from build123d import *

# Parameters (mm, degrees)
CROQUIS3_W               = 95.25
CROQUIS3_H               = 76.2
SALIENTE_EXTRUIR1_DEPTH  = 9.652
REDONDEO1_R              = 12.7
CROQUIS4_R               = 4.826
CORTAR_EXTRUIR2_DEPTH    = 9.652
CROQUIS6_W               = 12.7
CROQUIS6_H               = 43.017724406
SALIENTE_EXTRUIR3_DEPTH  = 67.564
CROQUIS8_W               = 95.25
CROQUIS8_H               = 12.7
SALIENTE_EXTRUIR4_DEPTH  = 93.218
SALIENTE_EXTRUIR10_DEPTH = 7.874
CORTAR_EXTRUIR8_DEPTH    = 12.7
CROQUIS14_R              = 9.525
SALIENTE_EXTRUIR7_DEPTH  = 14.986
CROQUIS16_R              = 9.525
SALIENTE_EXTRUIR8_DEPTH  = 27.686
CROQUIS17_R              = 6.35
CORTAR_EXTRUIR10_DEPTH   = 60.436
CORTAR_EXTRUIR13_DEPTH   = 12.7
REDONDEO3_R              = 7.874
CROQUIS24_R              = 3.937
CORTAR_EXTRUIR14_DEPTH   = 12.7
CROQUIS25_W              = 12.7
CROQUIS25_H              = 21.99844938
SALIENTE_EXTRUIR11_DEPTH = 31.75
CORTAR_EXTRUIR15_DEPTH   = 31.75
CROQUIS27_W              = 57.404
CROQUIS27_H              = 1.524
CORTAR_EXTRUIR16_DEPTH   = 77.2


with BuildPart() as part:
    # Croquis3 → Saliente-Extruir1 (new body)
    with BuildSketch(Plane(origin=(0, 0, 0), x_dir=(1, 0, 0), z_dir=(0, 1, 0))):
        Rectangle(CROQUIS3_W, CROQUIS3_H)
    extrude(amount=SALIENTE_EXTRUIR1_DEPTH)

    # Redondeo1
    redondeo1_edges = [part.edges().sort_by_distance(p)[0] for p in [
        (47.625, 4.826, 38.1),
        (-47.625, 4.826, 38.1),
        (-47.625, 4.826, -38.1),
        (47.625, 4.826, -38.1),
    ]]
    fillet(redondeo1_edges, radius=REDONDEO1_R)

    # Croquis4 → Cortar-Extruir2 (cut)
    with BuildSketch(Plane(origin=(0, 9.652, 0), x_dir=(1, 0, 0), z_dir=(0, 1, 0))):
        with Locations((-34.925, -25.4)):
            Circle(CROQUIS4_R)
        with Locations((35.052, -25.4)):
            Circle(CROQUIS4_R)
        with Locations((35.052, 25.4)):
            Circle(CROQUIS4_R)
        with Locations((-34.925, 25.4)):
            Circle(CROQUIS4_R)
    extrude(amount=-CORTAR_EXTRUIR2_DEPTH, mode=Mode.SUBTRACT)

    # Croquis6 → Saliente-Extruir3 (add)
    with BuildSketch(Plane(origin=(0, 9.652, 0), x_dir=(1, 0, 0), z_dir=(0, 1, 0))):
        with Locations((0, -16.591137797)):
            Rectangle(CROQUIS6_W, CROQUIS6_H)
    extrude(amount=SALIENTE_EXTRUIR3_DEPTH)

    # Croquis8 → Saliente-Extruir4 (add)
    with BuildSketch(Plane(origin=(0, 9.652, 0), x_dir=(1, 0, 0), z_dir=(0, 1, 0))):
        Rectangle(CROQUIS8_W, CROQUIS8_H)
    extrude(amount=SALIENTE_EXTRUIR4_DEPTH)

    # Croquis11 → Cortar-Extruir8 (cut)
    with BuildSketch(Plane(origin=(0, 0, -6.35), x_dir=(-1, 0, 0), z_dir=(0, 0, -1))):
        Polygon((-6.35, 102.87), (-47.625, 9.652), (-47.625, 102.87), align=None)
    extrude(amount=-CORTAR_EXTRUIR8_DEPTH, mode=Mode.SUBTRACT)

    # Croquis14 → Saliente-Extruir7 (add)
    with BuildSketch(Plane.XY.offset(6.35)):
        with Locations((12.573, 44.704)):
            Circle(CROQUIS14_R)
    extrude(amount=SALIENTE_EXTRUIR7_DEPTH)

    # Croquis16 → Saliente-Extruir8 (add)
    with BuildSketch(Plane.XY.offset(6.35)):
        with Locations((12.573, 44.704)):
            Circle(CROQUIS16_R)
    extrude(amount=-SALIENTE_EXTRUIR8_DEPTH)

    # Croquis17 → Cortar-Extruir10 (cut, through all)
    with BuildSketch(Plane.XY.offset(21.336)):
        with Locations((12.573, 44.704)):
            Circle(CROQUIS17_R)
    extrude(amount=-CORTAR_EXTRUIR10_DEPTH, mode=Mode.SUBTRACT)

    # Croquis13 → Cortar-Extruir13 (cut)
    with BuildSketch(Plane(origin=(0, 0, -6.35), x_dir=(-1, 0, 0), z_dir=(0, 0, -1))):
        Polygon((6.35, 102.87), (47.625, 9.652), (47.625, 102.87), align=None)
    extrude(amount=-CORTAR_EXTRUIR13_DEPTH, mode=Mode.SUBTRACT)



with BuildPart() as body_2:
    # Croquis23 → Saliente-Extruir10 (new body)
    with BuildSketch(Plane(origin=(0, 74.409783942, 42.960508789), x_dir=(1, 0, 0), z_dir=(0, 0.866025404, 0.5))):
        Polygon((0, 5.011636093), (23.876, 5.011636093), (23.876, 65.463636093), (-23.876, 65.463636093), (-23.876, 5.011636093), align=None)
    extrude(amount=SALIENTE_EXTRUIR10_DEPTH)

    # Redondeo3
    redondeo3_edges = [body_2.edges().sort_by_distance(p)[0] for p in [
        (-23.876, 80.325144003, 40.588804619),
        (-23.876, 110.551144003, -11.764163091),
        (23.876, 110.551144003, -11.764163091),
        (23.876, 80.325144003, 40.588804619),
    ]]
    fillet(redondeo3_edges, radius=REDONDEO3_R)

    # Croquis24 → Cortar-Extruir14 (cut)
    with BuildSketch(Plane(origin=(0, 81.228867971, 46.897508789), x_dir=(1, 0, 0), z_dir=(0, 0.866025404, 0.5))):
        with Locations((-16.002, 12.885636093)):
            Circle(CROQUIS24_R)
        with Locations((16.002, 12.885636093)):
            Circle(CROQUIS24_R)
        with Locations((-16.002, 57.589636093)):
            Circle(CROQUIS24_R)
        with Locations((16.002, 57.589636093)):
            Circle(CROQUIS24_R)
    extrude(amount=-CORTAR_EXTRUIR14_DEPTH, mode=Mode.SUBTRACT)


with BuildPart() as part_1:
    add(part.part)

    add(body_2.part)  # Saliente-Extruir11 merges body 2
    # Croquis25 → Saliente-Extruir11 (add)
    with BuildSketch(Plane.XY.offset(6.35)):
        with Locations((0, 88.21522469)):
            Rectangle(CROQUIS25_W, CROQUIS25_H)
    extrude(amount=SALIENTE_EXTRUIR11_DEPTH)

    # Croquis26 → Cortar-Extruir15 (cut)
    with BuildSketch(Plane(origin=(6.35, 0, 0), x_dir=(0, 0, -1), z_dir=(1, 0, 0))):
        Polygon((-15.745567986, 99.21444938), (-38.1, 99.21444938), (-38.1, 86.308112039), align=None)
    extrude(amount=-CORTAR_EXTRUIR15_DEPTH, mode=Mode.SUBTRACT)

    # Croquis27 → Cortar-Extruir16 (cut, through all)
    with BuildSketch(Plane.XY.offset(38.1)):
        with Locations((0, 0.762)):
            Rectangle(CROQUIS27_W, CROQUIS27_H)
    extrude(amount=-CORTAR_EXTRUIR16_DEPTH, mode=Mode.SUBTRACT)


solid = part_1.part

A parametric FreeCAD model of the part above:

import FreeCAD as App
import Part
import Sketcher
from FreeCAD import Vector
Q = App.Units.Quantity


def edges_at(feature, points):
    """Names of the edges that pass closest to the given points."""
    edges = feature.Shape.Edges
    near = lambda p: min(range(len(edges)), key=lambda i: edges[i].distToShape(Part.Vertex(*p))[0])
    return sorted({f"Edge{near(p) + 1}" for p in points})


def add_polygon(sketch, points):
    """Adds a closed chain of lines whose ends are joined by coincident constraints."""
    first, n = sketch.GeometryCount, len(points)
    for a, b in zip(points, points[1:] + points[:1]):
        sketch.addGeometry(Part.LineSegment(App.Vector(*a, 0), App.Vector(*b, 0)), False)
    for i in range(n):
        sketch.addConstraint(Sketcher.Constraint("Coincident", first + i, 2, first + (i + 1) % n, 1))

doc = App.newDocument("Part")
params = doc.addObject("Spreadsheet::Sheet", "Params")
for row, (alias, value) in enumerate([
    ("sketch1_height", "3 in"),
    ("sketch1_width", "3.75 in"),
    ("pad1_length", "0.38 in"),
    ("fillet_radius", "0.5 in"),
    ("sketch2_diameter", "0.38 in"),
    ("pocket1_length", "0.38 in"),
    ("sketch3_width", "0.5 in"),
    ("pad2_length", "2.66 in"),
    ("sketch4_height", "0.5 in"),
    ("sketch4_width", "3.75 in"),
    ("pad3_length", "3.67 in"),
    ("sketch5_height", "3.67 in"),
    ("sketch5_width", "1.625 in"),
    ("pocket2_length", "0.5 in"),
    ("sketch6_diameter", "0.75 in"),
    ("pad4_length", "0.59 in"),
    ("sketch7_diameter", "0.75 in"),
    ("pad5_length", "1.09 in"),
    ("sketch8_diameter", "0.5 in"),
    ("sketch9_height", "3.67 in"),
    ("sketch9_width", "1.625 in"),
    ("pocket4_length", "0.5 in"),
    ("sketch10_width", "1.88 in"),
    ("sketch10_height", "2.38 in"),
    ("pad6_length", "0.31 in"),
    ("fillet2_radius", "0.31 in"),
    ("sketch11_diameter", "0.31 in"),
    ("pocket5_length", "0.5 in"),
    ("sketch12_width", "0.5 in"),
    ("pad7_length", "1.25 in"),
    ("pocket6_length", "1.25 in"),
    ("sketch14_width", "2.26 in"),
    ("sketch14_height", "0.06 in"),
], start=1):
    params.set(f"A{row}", alias)
    params.set(f"B{row}", "=" + value)
    params.setAlias(f"B{row}", alias)

body = doc.addObject("PartDesign::Body", "Body")

# Sketch on XZ plane
sketch1 = doc.addObject("Sketcher::SketchObject", "Sketch")
body.addObject(sketch1)
sketch1.AttachmentSupport = (doc.XZ_Plane, [""])
sketch1.MapMode = "FlatFace"
add_polygon(sketch1, [(-48, -38), (-48, 38), (48, 38), (48, -38)])  # lines 0-3
sketch1.addConstraint([
    Sketcher.Constraint("Vertical", 0),
    Sketcher.Constraint("Horizontal", 1),
    Sketcher.Constraint("Vertical", 2),
    Sketcher.Constraint("Horizontal", 3),
    Sketcher.Constraint("Symmetric", 0, 2, 2, 2, -1, 1),
    Sketcher.Constraint("DistanceY", 0, 1, 0, 2, Q("3 in")),
    Sketcher.Constraint("DistanceX", 1, 1, 1, 2, Q("3.75 in")),
])
sketch1.setExpression("Constraints[9]", "Params.sketch1_height")
sketch1.setExpression("Constraints[10]", "Params.sketch1_width")
pad1 = doc.addObject("PartDesign::Pad", "Pad")
body.addObject(pad1)
pad1.Profile = sketch1
pad1.setExpression("Length", "Params.pad1_length")
pad1.Reversed = True
doc.recompute()

fillet = doc.addObject("PartDesign::Fillet", "Fillet")
body.addObject(fillet)
fillet.Base = (pad1, edges_at(pad1, [
    (47.625, 4.826, 38.1),
    (-47.625, 4.826, 38.1),
    (-47.625, 4.826, -38.1),
    (47.625, 4.826, -38.1),
]))
fillet.setExpression("Radius", "Params.fillet_radius")

# Sketch on XZ plane
sketch2 = doc.addObject("Sketcher::SketchObject", "Sketch001")
body.addObject(sketch2)
sketch2.AttachmentSupport = (doc.XZ_Plane, [""])
sketch2.MapMode = "FlatFace"
sketch2.AttachmentOffset = App.Placement(Vector(0, 0, -0.38 * 25.4), App.Rotation())
sketch2.addGeometry([
    Part.Circle(Vector(-34.9, 25.4, 0), Vector(0, 0, 1), 4.8),
    Part.Circle(Vector(35.1, 25.4, 0), Vector(0, 0, 1), 4.8),
    Part.Circle(Vector(35.1, -25.4, 0), Vector(0, 0, 1), 4.8),
    Part.Circle(Vector(-34.9, -25.4, 0), Vector(0, 0, 1), 4.8),
], False)
sketch2.addConstraint([
    Sketcher.Constraint("Equal", 0, 1),
    Sketcher.Constraint("Equal", 1, 2),
    Sketcher.Constraint("Equal", 2, 3),
    Sketcher.Constraint("Symmetric", 1, 3, 2, 3, -1),
    Sketcher.Constraint("Symmetric", 0, 3, 3, 3, -1),
    Sketcher.Constraint("Horizontal", 0, 3, 1, 3),
    Sketcher.Constraint("Diameter", 0, Q("0.38 in")),
    Sketcher.Constraint("DistanceY", -1, 1, 0, 3, Q("1 in")),
    Sketcher.Constraint("DistanceX", -1, 1, 1, 3, Q("1.38 in")),
    Sketcher.Constraint("DistanceX", 0, 3, -1, 1, Q("1.375 in")),
])
sketch2.setExpression("Constraints[6]", "Params.sketch2_diameter")
pocket1 = doc.addObject("PartDesign::Pocket", "Pocket")
body.addObject(pocket1)
pocket1.Profile = sketch2
pocket1.setExpression("Length", "Params.pocket1_length")
pocket1.Reversed = True

# Sketch on XZ plane
sketch3 = doc.addObject("Sketcher::SketchObject", "Sketch002")
body.addObject(sketch3)
sketch3.AttachmentSupport = (doc.XZ_Plane, [""])
sketch3.MapMode = "FlatFace"
sketch3.AttachmentOffset = App.Placement(Vector(0, 0, -0.38 * 25.4), App.Rotation())
add_polygon(sketch3, [(-6, -5), (-6, 38), (6, 38), (6, -5)])  # lines 0-3
sketch3.addConstraint([
    Sketcher.Constraint("Vertical", 0),
    Sketcher.Constraint("Horizontal", 1),
    Sketcher.Constraint("Vertical", 2),
    Sketcher.Constraint("Horizontal", 3),
    Sketcher.Constraint("DistanceX", 1, 1, 1, 2, Q("0.5 in")),
    Sketcher.Constraint("DistanceY", -1, 1, 0, 2, Q("1.5 in")),
    Sketcher.Constraint("DistanceX", 0, 2, -1, 1, Q("0.25 in")),
    Sketcher.Constraint("DistanceY", 0, 1, 0, 2, Q("43.017724 mm")),
])
sketch3.setExpression("Constraints[8]", "Params.sketch3_width")
pad2 = doc.addObject("PartDesign::Pad", "Pad001")
body.addObject(pad2)
pad2.Profile = sketch3
pad2.setExpression("Length", "Params.pad2_length")
pad2.Reversed = True

# Sketch on XZ plane
sketch4 = doc.addObject("Sketcher::SketchObject", "Sketch003")
body.addObject(sketch4)
sketch4.AttachmentSupport = (doc.XZ_Plane, [""])
sketch4.MapMode = "FlatFace"
sketch4.AttachmentOffset = App.Placement(Vector(0, 0, -0.38 * 25.4), App.Rotation())
add_polygon(sketch4, [(-48, -6), (-48, 6), (48, 6), (48, -6)])  # lines 0-3
sketch4.addConstraint([
    Sketcher.Constraint("Vertical", 0),
    Sketcher.Constraint("Horizontal", 1),
    Sketcher.Constraint("Vertical", 2),
    Sketcher.Constraint("Horizontal", 3),
    Sketcher.Constraint("Symmetric", 0, 2, 2, 2, -1, 1),
    Sketcher.Constraint("DistanceY", 0, 1, 0, 2, Q("0.5 in")),
    Sketcher.Constraint("DistanceX", 1, 1, 1, 2, Q("3.75 in")),
])
sketch4.setExpression("Constraints[9]", "Params.sketch4_height")
sketch4.setExpression("Constraints[10]", "Params.sketch4_width")
pad3 = doc.addObject("PartDesign::Pad", "Pad002")
body.addObject(pad3)
pad3.Profile = sketch4
pad3.setExpression("Length", "Params.pad3_length")
pad3.Reversed = True

# Sketch on XY plane
sketch5 = doc.addObject("Sketcher::SketchObject", "Sketch004")
body.addObject(sketch5)
sketch5.AttachmentSupport = (doc.XY_Plane, [""])
sketch5.MapMode = "FlatFace"
sketch5.AttachmentOffset = App.Placement(Vector(0, 0, -0.25 * 25.4), App.Rotation())
add_polygon(sketch5, [(48, 10), (6, 103), (48, 103)])  # lines 0-2
sketch5.addConstraint([
    Sketcher.Constraint("Horizontal", 1),
    Sketcher.Constraint("Vertical", 2),
    Sketcher.Constraint("DistanceY", 2, 2, 2, 1, Q("3.67 in")),
    Sketcher.Constraint("DistanceX", 1, 1, 1, 2, Q("1.625 in")),
    Sketcher.Constraint("DistanceX", -1, 1, 0, 2, Q("0.25 in")),
    Sketcher.Constraint("DistanceY", -1, 1, 0, 2, Q("4.05 in")),
])
sketch5.setExpression("Constraints[5]", "Params.sketch5_height")
sketch5.setExpression("Constraints[6]", "Params.sketch5_width")
pocket2 = doc.addObject("PartDesign::Pocket", "Pocket001")
body.addObject(pocket2)
pocket2.Profile = sketch5
pocket2.setExpression("Length", "Params.pocket2_length")
pocket2.Reversed = True

# Sketch on XY plane
sketch6 = doc.addObject("Sketcher::SketchObject", "Sketch005")
body.addObject(sketch6)
sketch6.AttachmentSupport = (doc.XY_Plane, [""])
sketch6.MapMode = "FlatFace"
sketch6.AttachmentOffset = App.Placement(Vector(0, 0, 0.25 * 25.4), App.Rotation())
sketch6.addGeometry(Part.Circle(Vector(13, 45, 0), Vector(0, 0, 1), 10), False)
sketch6.addConstraint([
    Sketcher.Constraint("Diameter", 0, Q("0.75 in")),
    Sketcher.Constraint("DistanceY", -1, 1, 0, 3, Q("1.76 in")),
    Sketcher.Constraint("DistanceX", -1, 1, 0, 3, Q("0.495 in")),
])
sketch6.setExpression("Constraints[0]", "Params.sketch6_diameter")
pad4 = doc.addObject("PartDesign::Pad", "Pad003")
body.addObject(pad4)
pad4.Profile = sketch6
pad4.setExpression("Length", "Params.pad4_length")

# Sketch on XY plane
sketch7 = doc.addObject("Sketcher::SketchObject", "Sketch006")
body.addObject(sketch7)
sketch7.AttachmentSupport = (doc.XY_Plane, [""])
sketch7.MapMode = "FlatFace"
sketch7.AttachmentOffset = App.Placement(Vector(0, 0, 0.25 * 25.4), App.Rotation())
sketch7.addGeometry(Part.Circle(Vector(13, 45, 0), Vector(0, 0, 1), 10), False)
sketch7.addConstraint([
    Sketcher.Constraint("Diameter", 0, Q("0.75 in")),
    Sketcher.Constraint("DistanceY", -1, 1, 0, 3, Q("1.76 in")),
    Sketcher.Constraint("DistanceX", -1, 1, 0, 3, Q("0.495 in")),
])
sketch7.setExpression("Constraints[0]", "Params.sketch7_diameter")
pad5 = doc.addObject("PartDesign::Pad", "Pad004")
body.addObject(pad5)
pad5.Profile = sketch7
pad5.setExpression("Length", "Params.pad5_length")
pad5.Reversed = True

# Sketch on XY plane
sketch8 = doc.addObject("Sketcher::SketchObject", "Sketch007")
body.addObject(sketch8)
sketch8.AttachmentSupport = (doc.XY_Plane, [""])
sketch8.MapMode = "FlatFace"
sketch8.AttachmentOffset = App.Placement(Vector(0, 0, 0.84 * 25.4), App.Rotation())
sketch8.addGeometry(Part.Circle(Vector(13, 45, 0), Vector(0, 0, 1), 6), False)
sketch8.addConstraint([
    Sketcher.Constraint("Diameter", 0, Q("0.5 in")),
    Sketcher.Constraint("DistanceY", -1, 1, 0, 3, Q("1.76 in")),
    Sketcher.Constraint("DistanceX", -1, 1, 0, 3, Q("0.495 in")),
])
sketch8.setExpression("Constraints[0]", "Params.sketch8_diameter")
pocket3 = doc.addObject("PartDesign::Pocket", "Pocket002")
body.addObject(pocket3)
pocket3.Profile = sketch8
pocket3.Type = "ThroughAll"

# Sketch on XY plane
sketch9 = doc.addObject("Sketcher::SketchObject", "Sketch008")
body.addObject(sketch9)
sketch9.AttachmentSupport = (doc.XY_Plane, [""])
sketch9.MapMode = "FlatFace"
sketch9.AttachmentOffset = App.Placement(Vector(0, 0, -0.25 * 25.4), App.Rotation())
add_polygon(sketch9, [(-6, 103), (-48, 10), (-48, 103)])  # lines 0-2
sketch9.addConstraint([
    Sketcher.Constraint("Vertical", 1),
    Sketcher.Constraint("Horizontal", 2),
    Sketcher.Constraint("DistanceY", 1, 1, 1, 2, Q("3.67 in")),
    Sketcher.Constraint("DistanceX", 2, 1, 2, 2, Q("1.625 in")),
    Sketcher.Constraint("DistanceY", -1, 1, 0, 2, Q("0.38 in")),
    Sketcher.Constraint("DistanceX", 2, 2, -1, 1, Q("0.25 in")),
])
sketch9.setExpression("Constraints[5]", "Params.sketch9_height")
sketch9.setExpression("Constraints[6]", "Params.sketch9_width")
pocket4 = doc.addObject("PartDesign::Pocket", "Pocket003")
body.addObject(pocket4)
pocket4.Profile = sketch9
pocket4.setExpression("Length", "Params.pocket4_length")
pocket4.Reversed = True
body2 = doc.addObject("PartDesign::Body", "Body001")

# Sketch on an angled plane
sketch10 = doc.addObject("Sketcher::SketchObject", "Sketch009")
body2.addObject(sketch10)
sketch10.Placement = App.Placement(Vector(0, 74.409784, 42.960509), App.Rotation(Vector(1, 0, 0), Vector(0, 0.5, -0.866025404), Vector(0, 0.866025404, 0.5), "ZXY"))
add_polygon(sketch10, [(24, 5), (24, 65), (-24, 65), (-24, 5)])  # lines 0-3
sketch10.addConstraint([
    Sketcher.Constraint("Vertical", 0),
    Sketcher.Constraint("Horizontal", 1),
    Sketcher.Constraint("Vertical", 2),
    Sketcher.Constraint("Horizontal", 3),
    Sketcher.Constraint("DistanceX", 1, 2, 1, 1, Q("1.88 in")),
    Sketcher.Constraint("DistanceY", 0, 1, 0, 2, Q("2.38 in")),
    Sketcher.Constraint("DistanceX", -1, 1, 0, 2, Q("0.94 in")),
    Sketcher.Constraint("DistanceY", -1, 1, 0, 2, Q("65.463636 mm")),
])
sketch10.setExpression("Constraints[8]", "Params.sketch10_width")
sketch10.setExpression("Constraints[9]", "Params.sketch10_height")
pad6 = doc.addObject("PartDesign::Pad", "Pad005")
body2.addObject(pad6)
pad6.Profile = sketch10
pad6.setExpression("Length", "Params.pad6_length")
doc.recompute()

fillet2 = doc.addObject("PartDesign::Fillet", "Fillet001")
body2.addObject(fillet2)
fillet2.Base = (pad6, edges_at(pad6, [
    (-23.876, 80.325, 40.589),
    (-23.876, 110.551, -11.764),
    (23.876, 110.551, -11.764),
    (23.876, 80.325, 40.589),
]))
fillet2.setExpression("Radius", "Params.fillet2_radius")

# Sketch on an angled plane
sketch11 = doc.addObject("Sketcher::SketchObject", "Sketch010")
body2.addObject(sketch11)
sketch11.Placement = App.Placement(Vector(0, 81.228868, 46.897509), App.Rotation(Vector(1, 0, 0), Vector(0, 0.5, -0.866025404), Vector(0, 0.866025404, 0.5), "ZXY"))
sketch11.addGeometry([
    Part.Circle(Vector(-16, 12.9, 0), Vector(0, 0, 1), 3.9),
    Part.Circle(Vector(16, 12.9, 0), Vector(0, 0, 1), 3.9),
    Part.Circle(Vector(-16, 57.6, 0), Vector(0, 0, 1), 3.9),
    Part.Circle(Vector(16, 57.6, 0), Vector(0, 0, 1), 3.9),
], False)
sketch11.addConstraint([
    Sketcher.Constraint("Equal", 0, 1),
    Sketcher.Constraint("Equal", 1, 2),
    Sketcher.Constraint("Equal", 2, 3),
    Sketcher.Constraint("Symmetric", 0, 3, 1, 3, -2),
    Sketcher.Constraint("Symmetric", 2, 3, 3, 3, -2),
    Sketcher.Constraint("Vertical", 0, 3, 2, 3),
    Sketcher.Constraint("Diameter", 0, Q("0.31 in")),
    Sketcher.Constraint("DistanceX", 0, 3, -1, 1, Q("0.63 in")),
    Sketcher.Constraint("DistanceY", 0, 3, 2, 3, Q("1.76 in")),
    Sketcher.Constraint("DistanceY", -1, 1, 0, 3, Q("12.885636 mm")),
])
sketch11.setExpression("Constraints[6]", "Params.sketch11_diameter")
pocket5 = doc.addObject("PartDesign::Pocket", "Pocket004")
body2.addObject(pocket5)
pocket5.Profile = sketch11
pocket5.setExpression("Length", "Params.pocket5_length")
doc.recompute()

boolean = doc.addObject("PartDesign::Boolean", "Boolean")
body.addObject(boolean)
boolean.Type = "Fuse"
boolean.addObjects([body2])

# Sketch on XY plane
sketch12 = doc.addObject("Sketcher::SketchObject", "Sketch011")
body.addObject(sketch12)
sketch12.AttachmentSupport = (doc.XY_Plane, [""])
sketch12.MapMode = "FlatFace"
sketch12.AttachmentOffset = App.Placement(Vector(0, 0, 0.25 * 25.4), App.Rotation())
add_polygon(sketch12, [(-6, 99), (-6, 77), (6, 77), (6, 99)])  # lines 0-3
sketch12.addConstraint([
    Sketcher.Constraint("Vertical", 0),
    Sketcher.Constraint("Horizontal", 1),
    Sketcher.Constraint("Vertical", 2),
    Sketcher.Constraint("Horizontal", 3),
    Sketcher.Constraint("DistanceX", 1, 1, 1, 2, Q("0.5 in")),
    Sketcher.Constraint("DistanceX", 0, 2, -1, 1, Q("0.25 in")),
    Sketcher.Constraint("DistanceY", -1, 1, 0, 2, Q("3.04 in")),
    Sketcher.Constraint("DistanceY", 0, 2, 0, 1, Q("21.998449 mm")),
])
sketch12.setExpression("Constraints[8]", "Params.sketch12_width")
pad7 = doc.addObject("PartDesign::Pad", "Pad006")
body.addObject(pad7)
pad7.Profile = sketch12
pad7.setExpression("Length", "Params.pad7_length")

# Sketch on YZ plane
sketch13 = doc.addObject("Sketcher::SketchObject", "Sketch012")
body.addObject(sketch13)
sketch13.AttachmentSupport = (doc.YZ_Plane, [""])
sketch13.MapMode = "FlatFace"
sketch13.AttachmentOffset = App.Placement(Vector(0, 0, 0.25 * 25.4), App.Rotation())
add_polygon(sketch13, [(99, 16), (99, 38), (86, 38)])  # lines 0-2
sketch13.addConstraint([
    Sketcher.Constraint("Vertical", 0),
    Sketcher.Constraint("Horizontal", 1),
    Sketcher.Constraint("Angle", 2, Q("-60 deg")),
    Sketcher.Constraint("DistanceY", -1, 1, 0, 2, Q("1.5 in")),
    Sketcher.Constraint("DistanceX", 1, 2, 1, 1, Q("12.906337 mm")),
    Sketcher.Constraint("DistanceX", -1, 1, 0, 2, Q("99.214449 mm")),
])
pocket6 = doc.addObject("PartDesign::Pocket", "Pocket005")
body.addObject(pocket6)
pocket6.Profile = sketch13
pocket6.setExpression("Length", "Params.pocket6_length")

# Sketch on XY plane
sketch14 = doc.addObject("Sketcher::SketchObject", "Sketch013")
body.addObject(sketch14)
sketch14.AttachmentSupport = (doc.XY_Plane, [""])
sketch14.MapMode = "FlatFace"
sketch14.AttachmentOffset = App.Placement(Vector(0, 0, 1.5 * 25.4), App.Rotation())
add_polygon(sketch14, [(-28.7, 1.5), (-28.7, 0), (28.7, 0), (28.7, 1.5)])  # lines 0-3
sketch14.addConstraint([
    Sketcher.Constraint("Vertical", 0),
    Sketcher.Constraint("Horizontal", 1),
    Sketcher.Constraint("Vertical", 2),
    Sketcher.Constraint("Horizontal", 3),
    Sketcher.Constraint("Symmetric", 0, 2, 1, 2, -1, 1),
    Sketcher.Constraint("DistanceX", 1, 1, 1, 2, Q("2.26 in")),
    Sketcher.Constraint("DistanceY", 0, 2, 0, 1, Q("0.06 in")),
])
sketch14.setExpression("Constraints[9]", "Params.sketch14_width")
sketch14.setExpression("Constraints[10]", "Params.sketch14_height")
pocket7 = doc.addObject("PartDesign::Pocket", "Pocket006")
body.addObject(pocket7)
pocket7.Profile = sketch14
pocket7.Type = "ThroughAll"

doc.recompute()
